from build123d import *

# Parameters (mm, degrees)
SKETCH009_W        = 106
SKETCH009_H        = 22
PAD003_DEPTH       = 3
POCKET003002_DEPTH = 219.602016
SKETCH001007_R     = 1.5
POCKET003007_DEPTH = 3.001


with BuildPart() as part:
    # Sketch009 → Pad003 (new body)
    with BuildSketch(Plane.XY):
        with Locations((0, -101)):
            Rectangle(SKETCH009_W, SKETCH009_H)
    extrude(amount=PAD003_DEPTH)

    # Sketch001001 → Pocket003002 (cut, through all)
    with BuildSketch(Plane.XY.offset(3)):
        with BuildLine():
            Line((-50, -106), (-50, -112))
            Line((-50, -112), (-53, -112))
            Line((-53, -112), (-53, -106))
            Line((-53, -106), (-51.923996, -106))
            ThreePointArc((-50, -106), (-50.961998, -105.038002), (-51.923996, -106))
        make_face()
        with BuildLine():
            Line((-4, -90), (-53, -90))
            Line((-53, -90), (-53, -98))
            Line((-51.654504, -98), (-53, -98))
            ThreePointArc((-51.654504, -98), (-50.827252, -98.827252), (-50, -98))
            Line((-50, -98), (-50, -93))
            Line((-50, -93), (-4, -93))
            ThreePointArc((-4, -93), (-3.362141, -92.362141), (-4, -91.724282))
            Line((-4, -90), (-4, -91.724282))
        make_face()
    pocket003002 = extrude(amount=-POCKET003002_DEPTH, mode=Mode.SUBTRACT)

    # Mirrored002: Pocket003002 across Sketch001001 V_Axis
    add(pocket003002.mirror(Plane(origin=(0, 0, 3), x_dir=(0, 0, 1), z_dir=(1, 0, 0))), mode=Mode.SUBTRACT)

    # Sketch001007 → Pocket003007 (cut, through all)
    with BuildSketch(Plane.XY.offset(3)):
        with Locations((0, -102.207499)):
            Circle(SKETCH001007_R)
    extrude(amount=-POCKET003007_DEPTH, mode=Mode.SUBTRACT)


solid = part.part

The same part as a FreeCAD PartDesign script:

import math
import FreeCAD as App
import Part
import Sketcher

V = App.Vector


def add_polygon(sketch, points):
    """Adds a closed chain of lines whose ends are joined by coincident constraints."""
    first, n = sketch.GeometryCount, len(points)
    for a, b in zip(points, points[1:] + points[:1]):
        sketch.addGeometry(Part.LineSegment(App.Vector(*a, 0), App.Vector(*b, 0)), False)
    for i in range(n):
        sketch.addConstraint(Sketcher.Constraint("Coincident", first + i, 2, first + (i + 1) % n, 1))

doc = App.newDocument("Part")
body = doc.addObject("PartDesign::Body", "Body")

sketch1 = doc.addObject("Sketcher::SketchObject", "Sketch")
body.addObject(sketch1)
sketch1.AttachmentSupport = (doc.XY_Plane, [""])
sketch1.MapMode = "FlatFace"
add_polygon(sketch1, [(-53, -90), (-53, -112), (53, -112), (53, -90)])
sketch1.addConstraint([
    Sketcher.Constraint("Vertical", 0),
    Sketcher.Constraint("Horizontal", 1),
    Sketcher.Constraint("Vertical", 2),
    Sketcher.Constraint("Horizontal", 3),
    Sketcher.Constraint("DistanceX", 1, 1, 1, 2, 106.0),
    Sketcher.Constraint("DistanceY", 0, 2, 0, 1, 22.0),
    Sketcher.Constraint("DistanceX", 0, 2, -1, 1, 53.0),
    Sketcher.Constraint("DistanceY", 0, 2, -1, 1, 112.0),
])
pad1 = doc.addObject("PartDesign::Pad", "Pad")
body.addObject(pad1)
pad1.Profile = sketch1
pad1.Length = 3

sketch2 = doc.addObject("Sketcher::SketchObject", "Sketch001")
body.addObject(sketch2)
sketch2.AttachmentSupport = (doc.XY_Plane, [""])
sketch2.MapMode = "FlatFace"
sketch2.AttachmentOffset = App.Placement(V(0, 0, 3), App.Rotation())
sketch2.addGeometry([
    Part.LineSegment(V(-50, -112, 0), V(-50, -106, 0)),
    Part.ArcOfCircle(Part.Circle(V(-51, -106, 0), V(0, 0, 1), 1), math.radians(0), math.radians(180)),
    Part.LineSegment(V(-51.9, -106, 0), V(-53, -106, 0)),
    Part.LineSegment(V(-53, -106, 0), V(-53, -112, 0)),
    Part.LineSegment(V(-53, -112, 0), V(-50, -112, 0)),
    Part.LineSegment(V(-4, -90, 0), V(-53, -90, 0)),
    Part.LineSegment(V(-53, -90, 0), V(-53, -98, 0)),
    Part.LineSegment(V(-53, -98, 0), V(-51.7, -98, 0)),
    Part.ArcOfCircle(Part.Circle(V(-50.8, -98, 0), V(0, 0, 1), 0.8), math.radians(180), math.radians(360)),
    Part.LineSegment(V(-50, -98, 0), V(-50, -93, 0)),
    Part.LineSegment(V(-50, -93, 0), V(-4, -93, 0)),
    Part.ArcOfCircle(Part.Circle(V(-4, -92.4, 0), V(0, 0, 1), 0.6), math.radians(-90), math.radians(90)),
    Part.LineSegment(V(-4, -91.7, 0), V(-4, -90, 0)),
], False)
sketch2.addConstraint([
    Sketcher.Constraint("Tangent", 0, 2, 1, 1),
    Sketcher.Constraint("Coincident", 1, 2, 2, 1),
    Sketcher.Constraint("Coincident", 2, 2, 3, 1),
    Sketcher.Constraint("Coincident", 3, 2, 4, 1),
    Sketcher.Constraint("Coincident", 4, 2, 0, 1),
    Sketcher.Constraint("Coincident", 5, 2, 6, 1),
    Sketcher.Constraint("Coincident", 6, 2, 7, 1),
    Sketcher.Constraint("Coincident", 7, 2, 8, 1),
    Sketcher.Constraint("Tangent", 8, 2, 9, 1),
    Sketcher.Constraint("Coincident", 9, 2, 10, 1),
    Sketcher.Constraint("Tangent", 10, 2, 11, 1),
    Sketcher.Constraint("Coincident", 11, 2, 12, 1),
    Sketcher.Constraint("Coincident", 12, 2, 5, 1),
    Sketcher.Constraint("Vertical", 0),
    Sketcher.Constraint("Horizontal", 2),
    Sketcher.Constraint("Vertical", 3),
    Sketcher.Constraint("Horizontal", 4),
    Sketcher.Constraint("Horizontal", 5),
    Sketcher.Constraint("Vertical", 6),
    Sketcher.Constraint("Horizontal", 7),
    Sketcher.Constraint("Vertical", 9),
    Sketcher.Constraint("Horizontal", 10),
    Sketcher.Constraint("Vertical", 12),
    Sketcher.Constraint("Horizontal", 0, 2, 1, 2),
    Sketcher.Constraint("Horizontal", 8, 3, 6, 2),
    Sketcher.Constraint("Vertical", 3, 2, 5, 2),
    Sketcher.Constraint("Vertical", 4, 2, 8, 2),
    Sketcher.Constraint("Vertical", 10, 2, 11, 2),
    Sketcher.Constraint("DistanceX", 4, 1, 4, 2, 3.0),
    Sketcher.Constraint("DistanceX", 5, 2, 5, 1, 49.0),
    Sketcher.Constraint("DistanceY", 0, 1, 0, 2, 6.0),
    Sketcher.Constraint("DistanceY", 6, 2, 6, 1, 8.0),
    Sketcher.Constraint("DistanceY", 9, 1, 9, 2, 5.0),
    Sketcher.Constraint("DistanceY", 1, 3, -1, 1, 106.0),
    Sketcher.Constraint("DistanceY", 8, 3, -1, 1, 98.0),
    Sketcher.Constraint("DistanceX", 11, 3, -1, 1, 4.0),
    Sketcher.Constraint("Radius", 1, 0.961998),
    Sketcher.Constraint("Radius", 8, 0.827252),
    Sketcher.Constraint("Radius", 11, 0.637859),
])
pocket1 = doc.addObject("PartDesign::Pocket", "Pocket")
body.addObject(pocket1)
pocket1.Profile = sketch2
pocket1.Type = "ThroughAll"
doc.recompute()

mirrored = doc.addObject("PartDesign::Mirrored", "Mirrored")
body.addObject(mirrored)
mirrored.Originals = [pocket1]
mirrored.MirrorPlane = (doc.YZ_Plane, [""])
body.Tip = mirrored

sketch3 = doc.addObject("Sketcher::SketchObject", "Sketch002")
body.addObject(sketch3)
sketch3.AttachmentSupport = (doc.XY_Plane, [""])
sketch3.MapMode = "FlatFace"
sketch3.AttachmentOffset = App.Placement(V(0, 0, 3), App.Rotation())
sketch3.addGeometry(Part.Circle(V(0, -102.2, 0), V(0, 0, 1), 1.5), False)
sketch3.addConstraint([
    Sketcher.Constraint("PointOnObject", 0, 3, -2),
    Sketcher.Constraint("Diameter", 0, 3.0),
    Sketcher.Constraint("DistanceY", 0, 3, -1, 1, 102.207499),
])
pocket2 = doc.addObject("PartDesign::Pocket", "Pocket001")
body.addObject(pocket2)
pocket2.Profile = sketch3
pocket2.Type = "ThroughAll"

doc.recompute()
